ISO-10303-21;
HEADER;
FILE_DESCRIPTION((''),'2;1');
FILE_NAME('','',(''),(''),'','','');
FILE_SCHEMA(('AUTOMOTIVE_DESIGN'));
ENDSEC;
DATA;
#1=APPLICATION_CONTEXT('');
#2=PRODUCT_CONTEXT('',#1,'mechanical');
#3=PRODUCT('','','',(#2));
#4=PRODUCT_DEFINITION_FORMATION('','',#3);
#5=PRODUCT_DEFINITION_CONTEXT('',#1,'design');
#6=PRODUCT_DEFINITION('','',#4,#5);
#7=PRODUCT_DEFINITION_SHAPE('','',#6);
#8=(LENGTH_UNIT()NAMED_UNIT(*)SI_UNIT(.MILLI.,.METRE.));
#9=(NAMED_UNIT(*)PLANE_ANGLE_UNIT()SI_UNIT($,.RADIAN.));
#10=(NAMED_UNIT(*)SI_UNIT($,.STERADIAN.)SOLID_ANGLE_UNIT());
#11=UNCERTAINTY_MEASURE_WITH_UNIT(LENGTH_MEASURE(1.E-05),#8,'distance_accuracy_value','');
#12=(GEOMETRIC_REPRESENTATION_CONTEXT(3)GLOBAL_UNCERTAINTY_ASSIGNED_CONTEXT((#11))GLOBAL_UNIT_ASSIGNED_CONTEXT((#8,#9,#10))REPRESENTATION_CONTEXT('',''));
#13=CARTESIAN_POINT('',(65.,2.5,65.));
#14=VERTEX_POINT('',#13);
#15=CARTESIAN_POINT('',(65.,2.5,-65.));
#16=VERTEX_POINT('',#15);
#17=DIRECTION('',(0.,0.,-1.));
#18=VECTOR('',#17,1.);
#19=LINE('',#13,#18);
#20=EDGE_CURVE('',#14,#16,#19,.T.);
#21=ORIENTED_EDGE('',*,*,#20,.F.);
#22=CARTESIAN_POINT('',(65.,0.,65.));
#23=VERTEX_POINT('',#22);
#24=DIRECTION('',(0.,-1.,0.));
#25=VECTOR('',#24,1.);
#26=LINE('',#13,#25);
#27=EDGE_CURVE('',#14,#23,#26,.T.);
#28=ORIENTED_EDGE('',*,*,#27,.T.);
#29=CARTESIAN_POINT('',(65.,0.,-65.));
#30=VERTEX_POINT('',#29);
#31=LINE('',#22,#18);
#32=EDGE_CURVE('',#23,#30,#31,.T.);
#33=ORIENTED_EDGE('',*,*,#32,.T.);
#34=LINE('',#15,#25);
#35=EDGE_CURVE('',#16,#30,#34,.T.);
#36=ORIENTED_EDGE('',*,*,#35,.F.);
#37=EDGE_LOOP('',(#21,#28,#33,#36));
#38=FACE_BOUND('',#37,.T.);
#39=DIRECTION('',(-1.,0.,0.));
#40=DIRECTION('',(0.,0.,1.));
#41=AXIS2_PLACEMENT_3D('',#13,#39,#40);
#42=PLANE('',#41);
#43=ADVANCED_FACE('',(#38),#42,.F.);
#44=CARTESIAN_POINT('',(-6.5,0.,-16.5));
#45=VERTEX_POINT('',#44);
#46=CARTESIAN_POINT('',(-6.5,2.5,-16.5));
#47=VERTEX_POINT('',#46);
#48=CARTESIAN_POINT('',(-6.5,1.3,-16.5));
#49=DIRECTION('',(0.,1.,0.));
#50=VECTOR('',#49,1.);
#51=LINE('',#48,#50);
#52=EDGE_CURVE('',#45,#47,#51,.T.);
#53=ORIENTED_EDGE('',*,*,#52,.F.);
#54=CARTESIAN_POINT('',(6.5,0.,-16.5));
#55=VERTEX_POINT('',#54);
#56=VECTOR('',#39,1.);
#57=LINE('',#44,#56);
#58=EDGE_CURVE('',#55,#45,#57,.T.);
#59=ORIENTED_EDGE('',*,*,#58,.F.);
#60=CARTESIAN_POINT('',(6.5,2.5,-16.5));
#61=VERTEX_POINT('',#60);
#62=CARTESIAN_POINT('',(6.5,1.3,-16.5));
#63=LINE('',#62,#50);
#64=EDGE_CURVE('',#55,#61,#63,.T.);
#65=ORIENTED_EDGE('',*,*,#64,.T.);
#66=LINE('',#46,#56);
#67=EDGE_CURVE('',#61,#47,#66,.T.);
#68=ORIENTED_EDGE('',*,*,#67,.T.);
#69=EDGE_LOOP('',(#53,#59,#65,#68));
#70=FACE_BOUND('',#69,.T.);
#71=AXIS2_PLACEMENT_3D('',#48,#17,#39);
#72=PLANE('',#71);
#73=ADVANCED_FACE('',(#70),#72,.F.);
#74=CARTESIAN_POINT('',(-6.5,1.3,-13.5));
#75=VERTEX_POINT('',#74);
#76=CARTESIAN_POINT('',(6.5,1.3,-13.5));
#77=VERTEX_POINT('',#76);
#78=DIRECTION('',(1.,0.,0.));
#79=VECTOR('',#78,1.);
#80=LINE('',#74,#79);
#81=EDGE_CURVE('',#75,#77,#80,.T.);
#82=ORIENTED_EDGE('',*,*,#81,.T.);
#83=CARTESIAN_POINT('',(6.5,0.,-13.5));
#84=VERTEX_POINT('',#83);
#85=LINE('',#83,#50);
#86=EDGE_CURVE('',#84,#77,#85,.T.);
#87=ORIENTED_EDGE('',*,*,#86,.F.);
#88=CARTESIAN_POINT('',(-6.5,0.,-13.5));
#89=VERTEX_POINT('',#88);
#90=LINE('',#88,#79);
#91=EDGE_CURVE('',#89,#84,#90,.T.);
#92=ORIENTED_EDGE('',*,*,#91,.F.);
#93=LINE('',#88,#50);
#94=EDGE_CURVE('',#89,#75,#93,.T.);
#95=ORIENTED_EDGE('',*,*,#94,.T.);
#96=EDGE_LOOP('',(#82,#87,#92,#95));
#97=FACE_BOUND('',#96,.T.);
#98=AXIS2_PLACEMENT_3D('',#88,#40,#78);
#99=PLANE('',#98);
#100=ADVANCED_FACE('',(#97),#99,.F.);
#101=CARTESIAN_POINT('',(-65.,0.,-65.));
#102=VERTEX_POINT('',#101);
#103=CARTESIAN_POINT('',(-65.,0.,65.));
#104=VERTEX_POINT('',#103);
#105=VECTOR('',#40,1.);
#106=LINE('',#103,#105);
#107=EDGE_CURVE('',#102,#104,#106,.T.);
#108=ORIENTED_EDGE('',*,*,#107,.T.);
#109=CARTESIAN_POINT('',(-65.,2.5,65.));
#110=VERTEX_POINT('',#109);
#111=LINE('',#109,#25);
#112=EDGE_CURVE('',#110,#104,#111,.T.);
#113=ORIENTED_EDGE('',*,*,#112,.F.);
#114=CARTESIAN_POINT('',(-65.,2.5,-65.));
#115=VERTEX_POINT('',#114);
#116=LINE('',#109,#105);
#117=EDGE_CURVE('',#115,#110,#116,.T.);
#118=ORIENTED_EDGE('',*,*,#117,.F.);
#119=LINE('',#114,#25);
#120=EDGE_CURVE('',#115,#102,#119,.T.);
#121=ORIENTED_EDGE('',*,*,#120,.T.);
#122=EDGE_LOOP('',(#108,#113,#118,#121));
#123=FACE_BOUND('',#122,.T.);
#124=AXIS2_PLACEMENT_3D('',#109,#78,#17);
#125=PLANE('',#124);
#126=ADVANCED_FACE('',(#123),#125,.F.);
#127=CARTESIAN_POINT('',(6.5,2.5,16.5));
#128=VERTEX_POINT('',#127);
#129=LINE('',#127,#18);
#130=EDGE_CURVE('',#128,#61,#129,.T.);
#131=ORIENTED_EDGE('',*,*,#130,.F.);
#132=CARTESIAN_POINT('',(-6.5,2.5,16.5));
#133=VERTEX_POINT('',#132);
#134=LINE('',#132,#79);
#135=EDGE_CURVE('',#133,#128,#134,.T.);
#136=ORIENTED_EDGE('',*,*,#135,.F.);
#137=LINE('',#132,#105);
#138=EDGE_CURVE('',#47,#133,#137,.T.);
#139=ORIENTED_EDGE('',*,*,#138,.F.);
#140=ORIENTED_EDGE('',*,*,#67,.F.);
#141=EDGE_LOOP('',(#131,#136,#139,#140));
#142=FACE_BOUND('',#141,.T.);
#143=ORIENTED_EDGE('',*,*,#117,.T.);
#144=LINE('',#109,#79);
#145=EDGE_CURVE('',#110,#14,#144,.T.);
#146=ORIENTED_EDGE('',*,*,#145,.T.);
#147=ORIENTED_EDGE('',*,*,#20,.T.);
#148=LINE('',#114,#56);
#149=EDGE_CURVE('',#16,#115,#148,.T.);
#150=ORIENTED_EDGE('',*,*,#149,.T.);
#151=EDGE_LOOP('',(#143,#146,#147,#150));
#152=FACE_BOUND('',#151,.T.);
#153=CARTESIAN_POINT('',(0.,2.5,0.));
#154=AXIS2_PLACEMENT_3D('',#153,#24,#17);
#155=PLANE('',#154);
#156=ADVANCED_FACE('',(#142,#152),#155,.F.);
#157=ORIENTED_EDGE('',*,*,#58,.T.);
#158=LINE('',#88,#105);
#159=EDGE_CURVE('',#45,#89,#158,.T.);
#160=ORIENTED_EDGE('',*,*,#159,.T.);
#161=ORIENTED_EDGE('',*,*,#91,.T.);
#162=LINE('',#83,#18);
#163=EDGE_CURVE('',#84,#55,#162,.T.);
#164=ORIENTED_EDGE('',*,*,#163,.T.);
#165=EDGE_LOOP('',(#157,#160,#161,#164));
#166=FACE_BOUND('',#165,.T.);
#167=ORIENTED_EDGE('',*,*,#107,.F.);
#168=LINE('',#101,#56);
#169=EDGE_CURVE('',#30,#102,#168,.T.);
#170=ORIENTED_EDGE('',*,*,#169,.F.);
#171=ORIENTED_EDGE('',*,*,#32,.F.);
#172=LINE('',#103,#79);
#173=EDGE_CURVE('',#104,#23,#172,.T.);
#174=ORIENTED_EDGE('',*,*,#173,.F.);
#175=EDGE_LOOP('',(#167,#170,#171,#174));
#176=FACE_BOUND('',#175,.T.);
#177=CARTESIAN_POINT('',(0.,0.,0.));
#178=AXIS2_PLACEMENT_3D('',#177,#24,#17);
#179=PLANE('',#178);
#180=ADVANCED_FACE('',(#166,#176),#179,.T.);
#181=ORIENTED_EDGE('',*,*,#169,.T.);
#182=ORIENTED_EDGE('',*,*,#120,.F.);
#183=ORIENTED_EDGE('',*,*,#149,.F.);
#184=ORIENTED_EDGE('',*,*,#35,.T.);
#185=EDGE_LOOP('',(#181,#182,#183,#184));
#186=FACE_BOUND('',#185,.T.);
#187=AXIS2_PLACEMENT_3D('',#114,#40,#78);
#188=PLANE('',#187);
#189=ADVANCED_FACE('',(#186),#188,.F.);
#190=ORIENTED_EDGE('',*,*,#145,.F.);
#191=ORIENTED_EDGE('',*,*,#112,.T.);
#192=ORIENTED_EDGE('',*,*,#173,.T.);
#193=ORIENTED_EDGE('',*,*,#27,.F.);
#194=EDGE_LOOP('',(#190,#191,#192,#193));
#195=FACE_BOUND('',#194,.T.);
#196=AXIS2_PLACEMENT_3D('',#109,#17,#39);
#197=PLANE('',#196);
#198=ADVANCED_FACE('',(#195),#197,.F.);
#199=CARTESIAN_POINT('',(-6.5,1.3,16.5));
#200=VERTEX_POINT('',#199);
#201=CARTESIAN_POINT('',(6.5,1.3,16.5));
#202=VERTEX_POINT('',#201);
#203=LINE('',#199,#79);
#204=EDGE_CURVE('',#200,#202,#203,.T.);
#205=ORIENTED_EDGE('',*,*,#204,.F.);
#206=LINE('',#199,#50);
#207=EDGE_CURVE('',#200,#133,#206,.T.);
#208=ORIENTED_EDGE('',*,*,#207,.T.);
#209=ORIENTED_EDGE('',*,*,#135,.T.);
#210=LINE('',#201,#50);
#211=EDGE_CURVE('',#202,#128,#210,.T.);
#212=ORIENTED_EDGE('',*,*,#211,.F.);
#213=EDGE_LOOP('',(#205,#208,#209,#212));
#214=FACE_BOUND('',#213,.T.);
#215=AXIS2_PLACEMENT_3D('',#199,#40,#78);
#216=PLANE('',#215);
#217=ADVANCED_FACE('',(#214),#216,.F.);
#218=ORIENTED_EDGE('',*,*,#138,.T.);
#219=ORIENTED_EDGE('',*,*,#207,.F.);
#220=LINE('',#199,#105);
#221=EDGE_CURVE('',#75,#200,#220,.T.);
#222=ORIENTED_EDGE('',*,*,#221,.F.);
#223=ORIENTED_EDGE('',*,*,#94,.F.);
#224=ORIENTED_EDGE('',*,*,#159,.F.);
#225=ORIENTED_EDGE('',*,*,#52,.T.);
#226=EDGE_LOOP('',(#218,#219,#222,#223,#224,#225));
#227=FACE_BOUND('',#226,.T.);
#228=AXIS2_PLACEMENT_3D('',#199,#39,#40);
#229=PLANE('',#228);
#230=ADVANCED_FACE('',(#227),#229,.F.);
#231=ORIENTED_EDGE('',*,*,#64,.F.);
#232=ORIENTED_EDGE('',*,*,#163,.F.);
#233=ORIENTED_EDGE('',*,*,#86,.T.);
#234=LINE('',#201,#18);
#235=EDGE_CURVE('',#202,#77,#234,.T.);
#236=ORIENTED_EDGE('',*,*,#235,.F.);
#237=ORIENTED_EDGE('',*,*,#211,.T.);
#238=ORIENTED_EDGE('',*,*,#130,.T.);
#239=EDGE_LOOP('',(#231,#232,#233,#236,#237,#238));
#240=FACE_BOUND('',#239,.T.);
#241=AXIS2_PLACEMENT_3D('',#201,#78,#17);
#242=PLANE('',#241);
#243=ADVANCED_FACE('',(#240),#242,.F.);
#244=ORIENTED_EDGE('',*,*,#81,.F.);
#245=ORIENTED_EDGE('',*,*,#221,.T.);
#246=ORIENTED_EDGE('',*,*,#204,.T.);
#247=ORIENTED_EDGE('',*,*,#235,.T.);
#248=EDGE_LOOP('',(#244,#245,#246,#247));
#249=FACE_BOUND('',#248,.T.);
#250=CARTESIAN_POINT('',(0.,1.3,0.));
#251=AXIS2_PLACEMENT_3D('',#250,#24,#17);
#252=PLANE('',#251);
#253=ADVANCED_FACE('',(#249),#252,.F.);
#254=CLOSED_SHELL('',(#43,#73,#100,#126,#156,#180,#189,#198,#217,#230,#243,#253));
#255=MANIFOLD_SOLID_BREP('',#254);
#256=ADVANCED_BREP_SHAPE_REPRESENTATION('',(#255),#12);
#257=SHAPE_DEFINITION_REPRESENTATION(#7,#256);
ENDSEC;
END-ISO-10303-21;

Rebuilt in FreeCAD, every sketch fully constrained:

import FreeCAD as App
import Part
import Sketcher
Q = App.Units.Quantity


def add_polygon(sketch, points):
    """Adds a closed chain of lines whose ends are joined by coincident constraints."""
    first, n = sketch.GeometryCount, len(points)
    for a, b in zip(points, points[1:] + points[:1]):
        sketch.addGeometry(Part.LineSegment(App.Vector(*a, 0), App.Vector(*b, 0)), False)
    for i in range(n):
        sketch.addConstraint(Sketcher.Constraint("Coincident", first + i, 2, first + (i + 1) % n, 1))

doc = App.newDocument("Part")
params = doc.addObject("Spreadsheet::Sheet", "Params")
for row, (alias, value) in enumerate([
    ("sketch1_width", "130 mm"),
    ("pad1_length", "2.5 mm"),
    ("sketch2_width", "13 mm"),
    ("sketch2_height", "33 mm"),
    ("pocket1_length", "1.2 mm"),
    ("sketch3_width", "13 mm"),
    ("sketch3_height", "3 mm"),
], start=1):
    params.set(f"A{row}", alias)
    params.set(f"B{row}", "=" + value)
    params.setAlias(f"B{row}", alias)

body = doc.addObject("PartDesign::Body", "Body")

sketch1 = body.newObject("Sketcher::SketchObject", "Sketch")
sketch1.AttachmentSupport = (doc.getObject("XZ_Plane"), [""])
sketch1.MapMode = "FlatFace"
add_polygon(sketch1, [(-65, -65), (-65, 65), (65, 65), (65, -65)])
sketch1.addConstraint([
    Sketcher.Constraint("Vertical", 0),
    Sketcher.Constraint("Horizontal", 1),
    Sketcher.Constraint("Vertical", 2),
    Sketcher.Constraint("Horizontal", 3),
    Sketcher.Constraint("Symmetric", 0, 2, 2, 2, -1, 1),
    Sketcher.Constraint("Equal", 3, 0),
    Sketcher.Constraint("DistanceX", 1, 1, 1, 2, Q("130 mm")),
])
sketch1.setExpression("Constraints[10]", "Params.sketch1_width")
pad1 = body.newObject("PartDesign::Pad", "Pad")
pad1.Profile = sketch1
pad1.setExpression("Length", "Params.pad1_length")
pad1.Reversed = True

sketch2 = body.newObject("Sketcher::SketchObject", "Sketch001")
sketch2.AttachmentSupport = (doc.getObject("XZ_Plane"), [""])
sketch2.MapMode = "FlatFace"
sketch2.AttachmentOffset = App.Placement(App.Vector(0, 0, -2.5), App.Rotation())
add_polygon(sketch2, [(-6.5, -16.5), (-6.5, 16.5), (6.5, 16.5), (6.5, -16.5)])
sketch2.addConstraint([
    Sketcher.Constraint("Vertical", 0),
    Sketcher.Constraint("Horizontal", 1),
    Sketcher.Constraint("Vertical", 2),
    Sketcher.Constraint("Horizontal", 3),
    Sketcher.Constraint("Symmetric", 0, 2, 2, 2, -1, 1),
    Sketcher.Constraint("DistanceX", 1, 1, 1, 2, Q("13 mm")),
    Sketcher.Constraint("DistanceY", 0, 1, 0, 2, Q("33 mm")),
])
sketch2.setExpression("Constraints[9]", "Params.sketch2_width")
sketch2.setExpression("Constraints[10]", "Params.sketch2_height")
pocket1 = body.newObject("PartDesign::Pocket", "Pocket")
pocket1.Profile = sketch2
pocket1.setExpression("Length", "Params.pocket1_length")
pocket1.Reversed = True

sketch3 = body.newObject("Sketcher::SketchObject", "Sketch002")
sketch3.AttachmentSupport = (doc.getObject("XZ_Plane"), [""])
sketch3.MapMode = "FlatFace"
sketch3.AttachmentOffset = App.Placement(App.Vector(0, 0, -1.3), App.Rotation())
add_polygon(sketch3, [(-6.5, -16.5), (-6.5, -13.5), (6.5, -13.5), (6.5, -16.5)])
sketch3.addConstraint([
    Sketcher.Constraint("Vertical", 0),
    Sketcher.Constraint("Horizontal", 1),
    Sketcher.Constraint("Vertical", 2),
    Sketcher.Constraint("Horizontal", 3),
    Sketcher.Constraint("DistanceX", 1, 1, 1, 2, Q("13 mm")),
    Sketcher.Constraint("DistanceY", 0, 1, 0, 2, Q("3 mm")),
    Sketcher.Constraint("DistanceX", 0, 2, -1, 1, Q("6.5 mm")),
    Sketcher.Constraint("DistanceY", 0, 2, -1, 1, Q("13.5 mm")),
])
sketch3.setExpression("Constraints[8]", "Params.sketch3_width")
sketch3.setExpression("Constraints[9]", "Params.sketch3_height")
pocket2 = body.newObject("PartDesign::Pocket", "Pocket001")
pocket2.Profile = sketch3
pocket2.Type = "ThroughAll"
pocket2.Reversed = True

doc.recompute()
